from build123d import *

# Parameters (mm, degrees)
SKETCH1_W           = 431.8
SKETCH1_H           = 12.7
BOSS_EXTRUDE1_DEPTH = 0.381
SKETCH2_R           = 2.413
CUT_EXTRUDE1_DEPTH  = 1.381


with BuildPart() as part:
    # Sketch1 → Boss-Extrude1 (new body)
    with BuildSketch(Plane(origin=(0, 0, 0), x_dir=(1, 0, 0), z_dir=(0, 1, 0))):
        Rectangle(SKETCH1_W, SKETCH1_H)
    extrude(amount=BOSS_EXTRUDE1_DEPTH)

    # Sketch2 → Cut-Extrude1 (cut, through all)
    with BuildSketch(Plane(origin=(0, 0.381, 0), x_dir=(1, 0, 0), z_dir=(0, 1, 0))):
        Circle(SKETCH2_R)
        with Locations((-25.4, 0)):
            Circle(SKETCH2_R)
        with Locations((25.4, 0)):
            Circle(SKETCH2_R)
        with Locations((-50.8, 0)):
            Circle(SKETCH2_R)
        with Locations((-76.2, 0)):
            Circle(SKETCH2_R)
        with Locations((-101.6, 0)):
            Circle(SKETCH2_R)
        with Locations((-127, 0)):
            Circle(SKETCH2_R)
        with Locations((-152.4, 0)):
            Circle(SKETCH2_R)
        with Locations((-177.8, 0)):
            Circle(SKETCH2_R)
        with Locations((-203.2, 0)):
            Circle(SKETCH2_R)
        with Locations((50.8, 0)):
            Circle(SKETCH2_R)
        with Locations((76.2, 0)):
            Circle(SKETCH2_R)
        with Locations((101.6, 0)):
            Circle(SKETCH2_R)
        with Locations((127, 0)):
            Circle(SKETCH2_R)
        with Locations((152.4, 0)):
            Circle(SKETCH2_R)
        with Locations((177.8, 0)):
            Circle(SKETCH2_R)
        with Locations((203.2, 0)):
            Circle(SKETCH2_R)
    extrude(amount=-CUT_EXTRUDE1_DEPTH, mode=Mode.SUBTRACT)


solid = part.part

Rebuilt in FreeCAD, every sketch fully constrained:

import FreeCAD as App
import Part
import Sketcher
from FreeCAD import Vector
Q = App.Units.Quantity

doc = App.newDocument("Part")
body = doc.addObject("PartDesign::Body", "Body")

sketch1 = body.newObject("Sketcher::SketchObject", "Sketch")
sketch1.AttachmentSupport = (doc.getObject("XZ_Plane"), [""])
sketch1.MapMode = "FlatFace"
sketch1.addGeometry(Part.LineSegment(Vector(-216, -6, 0), Vector(-216, 6, 0)), False)
sketch1.addGeometry(Part.LineSegment(Vector(-216, 6, 0), Vector(216, 6, 0)), False)
sketch1.addGeometry(Part.LineSegment(Vector(216, 6, 0), Vector(216, -6, 0)), False)
sketch1.addGeometry(Part.LineSegment(Vector(216, -6, 0), Vector(-216, -6, 0)), False)
sketch1.addConstraint(Sketcher.Constraint("Coincident", 0, 2, 1, 1))
sketch1.addConstraint(Sketcher.Constraint("Coincident", 1, 2, 2, 1))
sketch1.addConstraint(Sketcher.Constraint("Coincident", 2, 2, 3, 1))
sketch1.addConstraint(Sketcher.Constraint("Coincident", 3, 2, 0, 1))
sketch1.addConstraint(Sketcher.Constraint("Vertical", 0))
sketch1.addConstraint(Sketcher.Constraint("Horizontal", 1))
sketch1.addConstraint(Sketcher.Constraint("Vertical", 2))
sketch1.addConstraint(Sketcher.Constraint("Horizontal", 3))
sketch1.addConstraint(Sketcher.Constraint("Symmetric", 0, 2, 2, 2, -1, 1))
sketch1.addConstraint(Sketcher.Constraint("DistanceX", 1, 1, 1, 2, Q("17 in")))
sketch1.addConstraint(Sketcher.Constraint("DistanceY", 0, 1, 0, 2, Q("0.5 in")))
pad1 = body.newObject("PartDesign::Pad", "Pad")
pad1.Profile = sketch1
pad1.Length = Q("0.015 in")
pad1.Reversed = True

sketch2 = body.newObject("Sketcher::SketchObject", "Sketch001")
sketch2.AttachmentSupport = (doc.getObject("XZ_Plane"), [""])
sketch2.MapMode = "FlatFace"
sketch2.AttachmentOffset = App.Placement(Vector(0, 0, -0.015 * 25.4), App.Rotation())
sketch2.addGeometry(Part.Circle(Vector(0, 0, 0), Vector(0, 0, 1), 2.4), False)
sketch2.addGeometry(Part.Circle(Vector(-25.4, 0, 0), Vector(0, 0, 1), 2.4), False)
sketch2.addGeometry(Part.Circle(Vector(25.4, 0, 0), Vector(0, 0, 1), 2.4), False)
sketch2.addGeometry(Part.Circle(Vector(-50.8, 0, 0), Vector(0, 0, 1), 2.4), False)
sketch2.addGeometry(Part.Circle(Vector(-76.2, 0, 0), Vector(0, 0, 1), 2.4), False)
sketch2.addGeometry(Part.Circle(Vector(-101.6, 0, 0), Vector(0, 0, 1), 2.4), False)
sketch2.addGeometry(Part.Circle(Vector(-127, 0, 0), Vector(0, 0, 1), 2.4), False)
sketch2.addGeometry(Part.Circle(Vector(-152.4, 0, 0), Vector(0, 0, 1), 2.4), False)
sketch2.addGeometry(Part.Circle(Vector(-177.8, 0, 0), Vector(0, 0, 1), 2.4), False)
sketch2.addGeometry(Part.Circle(Vector(-203.2, 0, 0), Vector(0, 0, 1), 2.4), False)
sketch2.addGeometry(Part.Circle(Vector(50.8, 0, 0), Vector(0, 0, 1), 2.4), False)
sketch2.addGeometry(Part.Circle(Vector(76.2, 0, 0), Vector(0, 0, 1), 2.4), False)
sketch2.addGeometry(Part.Circle(Vector(101.6, 0, 0), Vector(0, 0, 1), 2.4), False)
sketch2.addGeometry(Part.Circle(Vector(127, 0, 0), Vector(0, 0, 1), 2.4), False)
sketch2.addGeometry(Part.Circle(Vector(152.4, 0, 0), Vector(0, 0, 1), 2.4), False)
sketch2.addGeometry(Part.Circle(Vector(177.8, 0, 0), Vector(0, 0, 1), 2.4), False)
sketch2.addGeometry(Part.Circle(Vector(203.2, 0, 0), Vector(0, 0, 1), 2.4), False)
sketch2.addConstraint(Sketcher.Constraint("Coincident", 0, 3, -1, 1))
sketch2.addConstraint(Sketcher.Constraint("Equal", 0, 1))
sketch2.addConstraint(Sketcher.Constraint("Equal", 1, 2))
sketch2.addConstraint(Sketcher.Constraint("Equal", 2, 3))
sketch2.addConstraint(Sketcher.Constraint("Equal", 3, 4))
sketch2.addConstraint(Sketcher.Constraint("Equal", 4, 5))
sketch2.addConstraint(Sketcher.Constraint("Equal", 5, 6))
sketch2.addConstraint(Sketcher.Constraint("Equal", 6, 7))
sketch2.addConstraint(Sketcher.Constraint("Equal", 7, 8))
sketch2.addConstraint(Sketcher.Constraint("Equal", 8, 9))
sketch2.addConstraint(Sketcher.Constraint("Equal", 9, 10))
sketch2.addConstraint(Sketcher.Constraint("Equal", 10, 11))
sketch2.addConstraint(Sketcher.Constraint("Equal", 11, 12))
sketch2.addConstraint(Sketcher.Constraint("Equal", 12, 13))
sketch2.addConstraint(Sketcher.Constraint("Equal", 13, 14))
sketch2.addConstraint(Sketcher.Constraint("Equal", 14, 15))
sketch2.addConstraint(Sketcher.Constraint("Equal", 15, 16))
sketch2.addConstraint(Sketcher.Constraint("Symmetric", 1, 3, 2, 3, -1, 1))
sketch2.addConstraint(Sketcher.Constraint("Symmetric", 3, 3, 10, 3, -1, 1))
sketch2.addConstraint(Sketcher.Constraint("Symmetric", 4, 3, 11, 3, -1, 1))
sketch2.addConstraint(Sketcher.Constraint("Symmetric", 5, 3, 12, 3, -1, 1))
sketch2.addConstraint(Sketcher.Constraint("Symmetric", 6, 3, 13, 3, -1, 1))
sketch2.addConstraint(Sketcher.Constraint("Symmetric", 7, 3, 14, 3, -1, 1))
sketch2.addConstraint(Sketcher.Constraint("Symmetric", 8, 3, 15, 3, -1, 1))
sketch2.addConstraint(Sketcher.Constraint("Symmetric", 9, 3, 16, 3, -1, 1))
sketch2.addConstraint(Sketcher.Constraint("PointOnObject", 1, 3, -1))
sketch2.addConstraint(Sketcher.Constraint("PointOnObject", 3, 3, -1))
sketch2.addConstraint(Sketcher.Constraint("PointOnObject", 4, 3, -1))
sketch2.addConstraint(Sketcher.Constraint("PointOnObject", 5, 3, -1))
sketch2.addConstraint(Sketcher.Constraint("PointOnObject", 6, 3, -1))
sketch2.addConstraint(Sketcher.Constraint("PointOnObject", 7, 3, -1))
sketch2.addConstraint(Sketcher.Constraint("PointOnObject", 8, 3, -1))
sketch2.addConstraint(Sketcher.Constraint("PointOnObject", 9, 3, -1))
sketch2.addConstraint(Sketcher.Constraint("Diameter", 0, Q("0.19 in")))
sketch2.addConstraint(Sketcher.Constraint("DistanceX", 1, 3, -1, 1, Q("1 in")))
sketch2.addConstraint(Sketcher.Constraint("DistanceX", 3, 3, -1, 1, Q("2 in")))
sketch2.addConstraint(Sketcher.Constraint("DistanceX", 4, 3, -1, 1, Q("3 in")))
sketch2.addConstraint(Sketcher.Constraint("DistanceX", 5, 3, -1, 1, Q("4 in")))
sketch2.addConstraint(Sketcher.Constraint("DistanceX", 6, 3, -1, 1, Q("5 in")))
sketch2.addConstraint(Sketcher.Constraint("DistanceX", 7, 3, -1, 1, Q("6 in")))
sketch2.addConstraint(Sketcher.Constraint("DistanceX", 8, 3, -1, 1, Q("7 in")))
sketch2.addConstraint(Sketcher.Constraint("DistanceX", 9, 3, -1, 1, Q("8 in")))
pocket1 = body.newObject("PartDesign::Pocket", "Pocket")
pocket1.Profile = sketch2
pocket1.Type = "ThroughAll"
pocket1.Reversed = True

doc.recompute()
